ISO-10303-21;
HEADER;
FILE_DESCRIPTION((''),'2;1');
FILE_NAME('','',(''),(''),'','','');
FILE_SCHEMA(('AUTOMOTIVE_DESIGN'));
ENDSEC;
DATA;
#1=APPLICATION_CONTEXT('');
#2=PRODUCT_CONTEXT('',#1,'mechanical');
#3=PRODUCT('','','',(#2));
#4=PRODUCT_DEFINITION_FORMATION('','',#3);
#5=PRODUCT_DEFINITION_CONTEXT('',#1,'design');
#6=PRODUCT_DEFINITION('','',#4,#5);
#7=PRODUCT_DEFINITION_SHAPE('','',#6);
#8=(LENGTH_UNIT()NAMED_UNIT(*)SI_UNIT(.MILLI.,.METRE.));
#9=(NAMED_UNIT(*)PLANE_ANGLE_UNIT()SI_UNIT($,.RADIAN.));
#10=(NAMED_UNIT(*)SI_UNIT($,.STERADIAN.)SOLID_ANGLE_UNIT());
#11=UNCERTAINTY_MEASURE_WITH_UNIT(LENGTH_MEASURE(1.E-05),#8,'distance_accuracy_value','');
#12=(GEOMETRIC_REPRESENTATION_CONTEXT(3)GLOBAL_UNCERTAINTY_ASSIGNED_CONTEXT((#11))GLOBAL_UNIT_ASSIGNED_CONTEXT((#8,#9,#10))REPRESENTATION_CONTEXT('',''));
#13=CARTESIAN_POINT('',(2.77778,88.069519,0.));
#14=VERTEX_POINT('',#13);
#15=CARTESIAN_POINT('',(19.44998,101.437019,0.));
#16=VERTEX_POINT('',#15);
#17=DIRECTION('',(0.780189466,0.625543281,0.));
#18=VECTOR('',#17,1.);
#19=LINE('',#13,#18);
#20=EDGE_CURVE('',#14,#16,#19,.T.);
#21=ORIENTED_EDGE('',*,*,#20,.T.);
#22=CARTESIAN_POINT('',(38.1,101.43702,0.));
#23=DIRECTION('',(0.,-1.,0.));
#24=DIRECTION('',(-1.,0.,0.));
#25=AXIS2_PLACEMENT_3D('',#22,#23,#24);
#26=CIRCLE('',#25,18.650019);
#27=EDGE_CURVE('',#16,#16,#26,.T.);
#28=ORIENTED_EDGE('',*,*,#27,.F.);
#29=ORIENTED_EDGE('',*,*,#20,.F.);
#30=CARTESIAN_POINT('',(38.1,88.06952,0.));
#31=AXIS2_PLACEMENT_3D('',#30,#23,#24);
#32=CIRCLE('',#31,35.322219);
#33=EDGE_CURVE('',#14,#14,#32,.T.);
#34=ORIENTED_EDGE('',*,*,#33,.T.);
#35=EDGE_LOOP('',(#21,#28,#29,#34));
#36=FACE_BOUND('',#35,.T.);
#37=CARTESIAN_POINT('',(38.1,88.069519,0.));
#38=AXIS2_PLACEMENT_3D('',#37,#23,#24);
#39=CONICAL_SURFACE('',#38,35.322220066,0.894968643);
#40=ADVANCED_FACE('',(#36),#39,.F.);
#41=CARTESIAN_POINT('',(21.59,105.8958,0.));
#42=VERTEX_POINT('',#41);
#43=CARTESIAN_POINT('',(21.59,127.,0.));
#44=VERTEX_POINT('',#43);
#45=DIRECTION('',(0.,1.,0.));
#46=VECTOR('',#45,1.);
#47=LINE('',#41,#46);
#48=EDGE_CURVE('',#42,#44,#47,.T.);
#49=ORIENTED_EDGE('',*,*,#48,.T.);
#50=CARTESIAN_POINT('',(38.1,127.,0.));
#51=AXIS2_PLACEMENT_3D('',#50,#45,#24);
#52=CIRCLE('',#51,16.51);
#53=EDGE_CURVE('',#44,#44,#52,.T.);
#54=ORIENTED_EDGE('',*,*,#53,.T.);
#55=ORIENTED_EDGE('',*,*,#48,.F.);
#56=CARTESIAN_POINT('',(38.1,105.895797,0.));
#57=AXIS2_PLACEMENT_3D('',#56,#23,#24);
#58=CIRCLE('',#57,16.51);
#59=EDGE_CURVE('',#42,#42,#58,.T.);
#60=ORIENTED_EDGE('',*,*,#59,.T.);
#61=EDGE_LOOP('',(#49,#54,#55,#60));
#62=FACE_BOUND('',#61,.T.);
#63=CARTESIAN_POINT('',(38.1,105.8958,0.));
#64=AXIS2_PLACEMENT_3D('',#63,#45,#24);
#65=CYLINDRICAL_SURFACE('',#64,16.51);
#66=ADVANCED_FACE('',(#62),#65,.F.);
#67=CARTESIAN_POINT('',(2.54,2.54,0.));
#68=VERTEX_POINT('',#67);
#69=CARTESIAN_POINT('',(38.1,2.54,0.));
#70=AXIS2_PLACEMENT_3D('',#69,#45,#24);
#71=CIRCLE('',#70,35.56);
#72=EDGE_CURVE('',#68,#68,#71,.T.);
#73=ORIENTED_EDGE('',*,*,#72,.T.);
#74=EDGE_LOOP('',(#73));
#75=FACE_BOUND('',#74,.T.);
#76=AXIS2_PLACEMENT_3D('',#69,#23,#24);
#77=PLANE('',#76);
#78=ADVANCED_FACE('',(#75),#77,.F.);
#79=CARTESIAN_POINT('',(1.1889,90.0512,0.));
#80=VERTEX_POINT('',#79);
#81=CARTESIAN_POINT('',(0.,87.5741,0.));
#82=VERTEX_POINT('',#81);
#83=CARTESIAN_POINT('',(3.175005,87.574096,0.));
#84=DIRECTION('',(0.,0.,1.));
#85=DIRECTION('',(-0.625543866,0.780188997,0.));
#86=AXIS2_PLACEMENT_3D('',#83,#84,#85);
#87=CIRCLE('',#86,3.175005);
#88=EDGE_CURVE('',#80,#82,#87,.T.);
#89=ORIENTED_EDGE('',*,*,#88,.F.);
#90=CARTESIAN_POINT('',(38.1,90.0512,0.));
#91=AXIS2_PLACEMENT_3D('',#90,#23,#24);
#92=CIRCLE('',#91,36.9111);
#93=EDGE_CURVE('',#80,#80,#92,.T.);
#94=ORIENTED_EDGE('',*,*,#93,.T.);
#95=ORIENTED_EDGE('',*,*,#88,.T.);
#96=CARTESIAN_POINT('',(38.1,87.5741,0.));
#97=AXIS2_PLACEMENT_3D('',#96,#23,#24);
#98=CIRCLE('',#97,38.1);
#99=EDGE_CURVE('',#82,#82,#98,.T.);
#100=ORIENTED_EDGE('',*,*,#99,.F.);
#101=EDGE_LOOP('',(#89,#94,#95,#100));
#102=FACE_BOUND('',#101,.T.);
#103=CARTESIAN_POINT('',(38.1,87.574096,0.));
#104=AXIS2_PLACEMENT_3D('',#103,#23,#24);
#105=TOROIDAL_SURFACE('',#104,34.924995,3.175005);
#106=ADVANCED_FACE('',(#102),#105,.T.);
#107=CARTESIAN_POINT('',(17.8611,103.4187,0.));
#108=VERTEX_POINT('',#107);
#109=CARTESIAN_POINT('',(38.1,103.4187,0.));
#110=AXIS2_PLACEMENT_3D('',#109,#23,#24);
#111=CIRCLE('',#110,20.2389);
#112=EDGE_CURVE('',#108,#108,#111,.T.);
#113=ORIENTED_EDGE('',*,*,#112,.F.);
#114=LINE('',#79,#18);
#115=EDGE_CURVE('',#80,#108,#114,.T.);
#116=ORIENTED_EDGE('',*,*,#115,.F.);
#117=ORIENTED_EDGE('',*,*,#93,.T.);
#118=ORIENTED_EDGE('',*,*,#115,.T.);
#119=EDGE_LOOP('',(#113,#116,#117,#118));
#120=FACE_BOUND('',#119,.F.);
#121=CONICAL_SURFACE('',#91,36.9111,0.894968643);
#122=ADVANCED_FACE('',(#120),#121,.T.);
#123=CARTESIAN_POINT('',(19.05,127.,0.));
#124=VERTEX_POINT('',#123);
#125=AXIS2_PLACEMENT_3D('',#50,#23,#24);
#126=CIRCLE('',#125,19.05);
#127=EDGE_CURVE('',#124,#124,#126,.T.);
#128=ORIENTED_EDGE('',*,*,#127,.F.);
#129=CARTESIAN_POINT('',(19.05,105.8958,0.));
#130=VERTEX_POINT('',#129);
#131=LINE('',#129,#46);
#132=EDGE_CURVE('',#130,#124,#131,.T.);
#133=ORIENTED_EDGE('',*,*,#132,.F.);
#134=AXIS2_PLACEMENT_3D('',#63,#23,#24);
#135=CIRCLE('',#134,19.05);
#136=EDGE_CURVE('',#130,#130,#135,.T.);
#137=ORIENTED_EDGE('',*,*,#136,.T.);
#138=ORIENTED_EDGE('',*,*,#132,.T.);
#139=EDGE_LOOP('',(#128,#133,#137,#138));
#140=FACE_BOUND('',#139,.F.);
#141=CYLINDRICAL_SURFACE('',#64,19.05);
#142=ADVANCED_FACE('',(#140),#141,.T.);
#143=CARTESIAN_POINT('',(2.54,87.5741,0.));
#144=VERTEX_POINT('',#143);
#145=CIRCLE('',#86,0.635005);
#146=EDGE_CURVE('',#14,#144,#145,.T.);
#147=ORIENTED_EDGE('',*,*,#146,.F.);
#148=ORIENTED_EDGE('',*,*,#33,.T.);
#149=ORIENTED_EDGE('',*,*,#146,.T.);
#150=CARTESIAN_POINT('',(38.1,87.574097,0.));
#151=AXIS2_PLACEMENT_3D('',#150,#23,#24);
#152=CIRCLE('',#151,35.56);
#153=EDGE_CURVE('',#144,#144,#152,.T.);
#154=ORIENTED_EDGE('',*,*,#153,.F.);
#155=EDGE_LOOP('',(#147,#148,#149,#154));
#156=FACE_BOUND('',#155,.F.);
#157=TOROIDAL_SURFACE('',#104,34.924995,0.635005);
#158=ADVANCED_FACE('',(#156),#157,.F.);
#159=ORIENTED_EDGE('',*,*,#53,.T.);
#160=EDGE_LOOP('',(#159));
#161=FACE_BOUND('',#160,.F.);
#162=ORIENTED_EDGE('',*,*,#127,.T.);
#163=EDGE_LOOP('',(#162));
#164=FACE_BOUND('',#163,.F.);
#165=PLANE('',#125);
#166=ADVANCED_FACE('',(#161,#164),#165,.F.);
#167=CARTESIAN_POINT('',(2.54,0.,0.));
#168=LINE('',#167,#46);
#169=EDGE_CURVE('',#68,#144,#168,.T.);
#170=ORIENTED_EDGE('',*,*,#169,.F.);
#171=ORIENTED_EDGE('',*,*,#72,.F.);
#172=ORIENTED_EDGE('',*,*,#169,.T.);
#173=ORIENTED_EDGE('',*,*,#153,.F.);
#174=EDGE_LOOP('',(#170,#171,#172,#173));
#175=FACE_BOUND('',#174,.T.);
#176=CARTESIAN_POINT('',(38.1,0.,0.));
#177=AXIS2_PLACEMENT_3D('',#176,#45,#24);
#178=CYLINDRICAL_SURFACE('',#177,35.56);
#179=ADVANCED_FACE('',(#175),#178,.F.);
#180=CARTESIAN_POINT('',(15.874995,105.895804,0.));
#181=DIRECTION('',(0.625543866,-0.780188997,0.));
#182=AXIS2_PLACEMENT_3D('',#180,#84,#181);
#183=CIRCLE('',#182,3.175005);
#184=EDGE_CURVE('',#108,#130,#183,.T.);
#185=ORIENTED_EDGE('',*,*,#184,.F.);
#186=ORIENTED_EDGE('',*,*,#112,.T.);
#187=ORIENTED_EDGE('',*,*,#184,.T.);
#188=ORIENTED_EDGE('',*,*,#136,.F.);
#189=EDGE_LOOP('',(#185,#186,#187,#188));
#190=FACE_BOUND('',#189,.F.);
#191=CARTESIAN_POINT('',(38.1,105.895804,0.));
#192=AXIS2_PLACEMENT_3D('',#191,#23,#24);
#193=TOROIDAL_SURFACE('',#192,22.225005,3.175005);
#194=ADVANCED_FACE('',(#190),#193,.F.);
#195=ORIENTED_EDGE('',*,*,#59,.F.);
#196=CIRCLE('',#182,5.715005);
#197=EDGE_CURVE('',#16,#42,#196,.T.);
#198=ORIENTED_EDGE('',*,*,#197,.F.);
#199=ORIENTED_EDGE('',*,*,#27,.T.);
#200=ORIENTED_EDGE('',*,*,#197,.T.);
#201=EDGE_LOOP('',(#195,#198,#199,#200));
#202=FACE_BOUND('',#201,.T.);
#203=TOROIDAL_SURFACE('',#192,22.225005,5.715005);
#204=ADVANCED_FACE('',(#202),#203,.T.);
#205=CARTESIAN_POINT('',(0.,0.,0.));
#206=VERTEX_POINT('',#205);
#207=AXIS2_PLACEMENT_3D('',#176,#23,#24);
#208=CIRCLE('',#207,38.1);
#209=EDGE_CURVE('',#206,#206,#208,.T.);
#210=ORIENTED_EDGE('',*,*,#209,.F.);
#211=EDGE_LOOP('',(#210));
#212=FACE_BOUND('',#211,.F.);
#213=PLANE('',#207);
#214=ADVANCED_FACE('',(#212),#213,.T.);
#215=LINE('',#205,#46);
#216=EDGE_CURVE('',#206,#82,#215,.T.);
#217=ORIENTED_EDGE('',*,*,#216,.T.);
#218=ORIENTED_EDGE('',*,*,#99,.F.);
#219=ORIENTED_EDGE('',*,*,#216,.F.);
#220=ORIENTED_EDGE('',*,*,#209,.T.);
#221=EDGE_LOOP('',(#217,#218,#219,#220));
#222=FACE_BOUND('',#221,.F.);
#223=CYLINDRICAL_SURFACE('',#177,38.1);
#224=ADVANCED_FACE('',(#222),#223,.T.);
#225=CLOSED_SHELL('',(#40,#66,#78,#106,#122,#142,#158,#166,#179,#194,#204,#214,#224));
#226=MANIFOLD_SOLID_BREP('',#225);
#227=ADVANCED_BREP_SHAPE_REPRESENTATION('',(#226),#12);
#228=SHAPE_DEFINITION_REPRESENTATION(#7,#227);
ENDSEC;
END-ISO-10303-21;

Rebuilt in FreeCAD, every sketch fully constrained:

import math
import FreeCAD as App
import Part
import Sketcher
Q = App.Units.Quantity


def faces_at(feature, points):
    """Names of the faces that lie closest to the given points."""
    faces = feature.Shape.Faces
    near = lambda p: min(range(len(faces)), key=lambda i: faces[i].distToShape(Part.Vertex(*p))[0])
    return sorted({f"Face{near(p) + 1}" for p in points})

doc = App.newDocument("Part")
params = doc.addObject("Spreadsheet::Sheet", "Params")
for row, (alias, value) in enumerate([
    ("sketch1_height", "5 in"),
    ("sketch1_width", "1.5 in"),
    ("sketch1_radius", "0.125 in"),
    ("sketch1_width2", "0.75 in"),
    ("revolution_angle", "360 deg"),
    ("thickness_wall", "0.1 in"),
], start=1):
    params.set(f"A{row}", alias)
    params.set(f"B{row}", "=" + value)
    params.setAlias(f"B{row}", alias)

body = doc.addObject("PartDesign::Body", "Body")

sketch1 = body.newObject("Sketcher::SketchObject", "Sketch")
sketch1.AttachmentSupport = (doc.getObject("XY_Plane"), [""])
sketch1.MapMode = "FlatFace"
sketch1.addGeometry([
    Part.LineSegment(App.Vector(0, 87.6, 0), App.Vector(0, 0, 0)),
    Part.LineSegment(App.Vector(0, 0, 0), App.Vector(38.1, 0, 0)),
    Part.LineSegment(App.Vector(38.1, 0, 0), App.Vector(38.1, 127, 0)),
    Part.LineSegment(App.Vector(38.1, 127, 0), App.Vector(19.1, 127, 0)),
    Part.LineSegment(App.Vector(19.1, 127, 0), App.Vector(19.1, 105.9, 0)),
    Part.ArcOfCircle(Part.Circle(App.Vector(15.9, 105.9, 0), App.Vector(0, 0, 1), 3.2), math.radians(-51), math.radians(0)),
    Part.LineSegment(App.Vector(17.9, 103.4, 0), App.Vector(1.2, 90.1, 0)),
    Part.ArcOfCircle(Part.Circle(App.Vector(3.2, 87.6, 0), App.Vector(0, 0, 1), 3.2), math.radians(129), math.radians(180)),
], False)
sketch1.addGeometry(Part.LineSegment(App.Vector(38.1, 127, 0), App.Vector(38.1, 0, 0)), True)
sketch1.addConstraint([
    Sketcher.Constraint("Coincident", 0, 2, 1, 1),
    Sketcher.Constraint("Coincident", 1, 2, 2, 1),
    Sketcher.Constraint("Coincident", 2, 2, 3, 1),
    Sketcher.Constraint("Coincident", 3, 2, 4, 1),
    Sketcher.Constraint("Tangent", 4, 2, 5, 2),
    Sketcher.Constraint("Tangent", 5, 1, 6, 1),
    Sketcher.Constraint("Tangent", 6, 2, 7, 1),
    Sketcher.Constraint("Tangent", 7, 2, 0, 1),
    Sketcher.Constraint("Vertical", 0),
    Sketcher.Constraint("Horizontal", 1),
    Sketcher.Constraint("Vertical", 2),
    Sketcher.Constraint("Horizontal", 3),
    Sketcher.Constraint("Vertical", 4),
    Sketcher.Constraint("Vertical", 8),
    Sketcher.Constraint("Coincident", 0, 2, -1, 1),
    Sketcher.Constraint("Coincident", 8, 1, 2, 2),
    Sketcher.Constraint("Equal", 5, 7),
    Sketcher.Constraint("PointOnObject", 8, 2, -1),
    Sketcher.Constraint("DistanceY", 2, 1, 2, 2, Q("5 in")),
    Sketcher.Constraint("DistanceX", 1, 1, 1, 2, Q("1.5 in")),
    Sketcher.Constraint("Radius", 5, Q("0.125 in")),
    Sketcher.Constraint("DistanceX", 3, 2, 3, 1, Q("0.75 in")),
    Sketcher.Constraint("DistanceY", 0, 2, 0, 1, Q("3.4478 in")),
    Sketcher.Constraint("DistanceY", 4, 2, 4, 1, Q("21.1042 mm")),
])
sketch1.setExpression("Constraints[18]", "Params.sketch1_height")
sketch1.setExpression("Constraints[19]", "Params.sketch1_width")
sketch1.setExpression("Constraints[20]", "Params.sketch1_radius")
sketch1.setExpression("Constraints[21]", "Params.sketch1_width2")
revolution = body.newObject("PartDesign::Revolution", "Revolution")
revolution.Profile = sketch1
revolution.ReferenceAxis = (sketch1, ["Axis0"])
revolution.setExpression("Angle", "Params.revolution_angle")
doc.recompute()

thickness = body.newObject("PartDesign::Thickness", "Thickness")
thickness.Base = (revolution, faces_at(revolution, [(38.996, 127, 5.226)]))
thickness.setExpression("Value", "Params.thickness_wall")
thickness.Reversed = True
thickness.Join = "Intersection"

doc.recompute()
